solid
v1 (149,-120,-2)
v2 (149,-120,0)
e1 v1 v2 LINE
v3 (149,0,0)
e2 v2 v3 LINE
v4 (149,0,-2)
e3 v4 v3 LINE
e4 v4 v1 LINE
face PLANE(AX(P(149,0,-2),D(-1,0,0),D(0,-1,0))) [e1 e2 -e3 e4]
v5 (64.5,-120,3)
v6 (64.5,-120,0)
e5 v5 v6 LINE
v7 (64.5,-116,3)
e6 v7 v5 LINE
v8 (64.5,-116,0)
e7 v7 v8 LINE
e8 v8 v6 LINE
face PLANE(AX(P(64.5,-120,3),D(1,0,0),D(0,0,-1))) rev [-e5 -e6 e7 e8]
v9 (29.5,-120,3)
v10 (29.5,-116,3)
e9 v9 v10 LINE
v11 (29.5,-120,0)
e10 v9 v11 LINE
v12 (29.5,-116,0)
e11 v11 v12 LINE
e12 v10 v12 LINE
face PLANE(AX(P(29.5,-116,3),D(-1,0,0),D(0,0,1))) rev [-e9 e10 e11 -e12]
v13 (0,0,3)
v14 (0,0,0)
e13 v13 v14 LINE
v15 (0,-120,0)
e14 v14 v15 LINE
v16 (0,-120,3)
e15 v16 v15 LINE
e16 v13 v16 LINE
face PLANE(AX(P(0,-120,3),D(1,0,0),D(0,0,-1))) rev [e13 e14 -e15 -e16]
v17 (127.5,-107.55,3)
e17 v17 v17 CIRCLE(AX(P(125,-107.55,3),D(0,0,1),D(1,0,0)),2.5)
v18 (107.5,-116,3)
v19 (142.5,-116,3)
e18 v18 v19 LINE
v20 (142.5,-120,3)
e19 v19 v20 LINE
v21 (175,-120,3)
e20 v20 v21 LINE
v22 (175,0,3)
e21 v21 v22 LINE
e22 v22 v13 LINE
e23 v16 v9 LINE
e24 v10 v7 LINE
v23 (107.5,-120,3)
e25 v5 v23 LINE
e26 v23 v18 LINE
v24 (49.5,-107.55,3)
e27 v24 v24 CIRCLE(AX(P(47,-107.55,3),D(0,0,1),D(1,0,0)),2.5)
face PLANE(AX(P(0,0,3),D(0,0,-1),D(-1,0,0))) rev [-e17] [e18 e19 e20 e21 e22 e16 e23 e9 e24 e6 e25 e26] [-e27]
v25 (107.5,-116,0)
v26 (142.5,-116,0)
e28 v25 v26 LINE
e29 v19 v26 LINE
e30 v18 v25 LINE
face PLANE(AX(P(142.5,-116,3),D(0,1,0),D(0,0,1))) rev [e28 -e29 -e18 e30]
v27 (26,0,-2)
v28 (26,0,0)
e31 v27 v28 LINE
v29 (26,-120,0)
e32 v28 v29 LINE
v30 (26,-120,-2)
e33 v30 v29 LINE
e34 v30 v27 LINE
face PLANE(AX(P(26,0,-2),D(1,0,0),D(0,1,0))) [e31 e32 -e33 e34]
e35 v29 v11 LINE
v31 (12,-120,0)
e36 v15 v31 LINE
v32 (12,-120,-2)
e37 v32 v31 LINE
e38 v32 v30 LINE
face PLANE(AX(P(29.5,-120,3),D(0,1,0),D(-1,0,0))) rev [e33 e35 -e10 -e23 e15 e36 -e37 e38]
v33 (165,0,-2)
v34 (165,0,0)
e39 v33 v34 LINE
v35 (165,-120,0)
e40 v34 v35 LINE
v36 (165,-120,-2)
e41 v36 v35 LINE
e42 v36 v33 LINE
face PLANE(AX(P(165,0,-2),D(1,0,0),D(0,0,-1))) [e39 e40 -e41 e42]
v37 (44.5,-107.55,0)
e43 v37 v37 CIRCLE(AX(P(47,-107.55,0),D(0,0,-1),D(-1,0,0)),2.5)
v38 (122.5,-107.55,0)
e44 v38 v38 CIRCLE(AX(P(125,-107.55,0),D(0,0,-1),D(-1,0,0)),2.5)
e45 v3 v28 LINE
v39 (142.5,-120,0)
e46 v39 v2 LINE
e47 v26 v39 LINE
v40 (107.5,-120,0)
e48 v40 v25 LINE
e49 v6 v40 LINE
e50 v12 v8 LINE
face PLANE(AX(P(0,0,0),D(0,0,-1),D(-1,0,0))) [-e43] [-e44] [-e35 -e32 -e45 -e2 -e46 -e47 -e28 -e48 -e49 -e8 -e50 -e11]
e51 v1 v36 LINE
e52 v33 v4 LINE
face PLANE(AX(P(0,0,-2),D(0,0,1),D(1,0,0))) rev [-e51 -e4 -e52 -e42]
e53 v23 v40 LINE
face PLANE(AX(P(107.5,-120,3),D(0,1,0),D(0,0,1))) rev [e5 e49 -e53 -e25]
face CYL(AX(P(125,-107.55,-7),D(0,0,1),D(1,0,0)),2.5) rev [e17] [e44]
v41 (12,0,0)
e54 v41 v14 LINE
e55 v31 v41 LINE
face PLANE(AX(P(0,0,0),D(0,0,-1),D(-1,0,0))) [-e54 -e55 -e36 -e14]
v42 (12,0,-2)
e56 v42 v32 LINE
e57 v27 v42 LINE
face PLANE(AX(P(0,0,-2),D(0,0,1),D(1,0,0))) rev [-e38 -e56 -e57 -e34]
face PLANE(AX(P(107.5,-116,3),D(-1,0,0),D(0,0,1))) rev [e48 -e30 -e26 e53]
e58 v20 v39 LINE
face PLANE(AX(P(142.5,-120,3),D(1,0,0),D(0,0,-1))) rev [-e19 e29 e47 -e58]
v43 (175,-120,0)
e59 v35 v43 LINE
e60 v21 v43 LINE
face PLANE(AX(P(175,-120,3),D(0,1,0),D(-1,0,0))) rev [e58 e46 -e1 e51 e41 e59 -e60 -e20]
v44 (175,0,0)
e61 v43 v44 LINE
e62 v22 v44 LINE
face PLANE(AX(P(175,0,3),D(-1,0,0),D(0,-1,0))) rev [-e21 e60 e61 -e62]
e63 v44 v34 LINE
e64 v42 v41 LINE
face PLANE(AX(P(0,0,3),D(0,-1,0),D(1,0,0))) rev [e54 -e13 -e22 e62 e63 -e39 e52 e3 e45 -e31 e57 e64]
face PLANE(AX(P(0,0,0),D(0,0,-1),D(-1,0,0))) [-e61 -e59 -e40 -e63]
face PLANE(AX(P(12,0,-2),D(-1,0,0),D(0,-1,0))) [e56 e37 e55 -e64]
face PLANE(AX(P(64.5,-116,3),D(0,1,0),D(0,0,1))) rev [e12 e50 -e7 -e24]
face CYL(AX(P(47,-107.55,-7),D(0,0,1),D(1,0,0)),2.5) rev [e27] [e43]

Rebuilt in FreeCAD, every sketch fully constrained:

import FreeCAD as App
import Part
import Sketcher
Q = App.Units.Quantity


def add_polygon(sketch, points):
    """Adds a closed chain of lines whose ends are joined by coincident constraints."""
    first, n = sketch.GeometryCount, len(points)
    for a, b in zip(points, points[1:] + points[:1]):
        sketch.addGeometry(Part.LineSegment(App.Vector(*a, 0), App.Vector(*b, 0)), False)
    for i in range(n):
        sketch.addConstraint(Sketcher.Constraint("Coincident", first + i, 2, first + (i + 1) % n, 1))

doc = App.newDocument("Part")
body = doc.addObject("PartDesign::Body", "Body")

# Sketch on XY plane
sketch1 = body.newObject("Sketcher::SketchObject", "Sketch")
sketch1.AttachmentSupport = (doc.getObject("XY_Plane"), [""])
sketch1.MapMode = "FlatFace"
add_polygon(sketch1, [(175, 0), (0, 0), (0, -120), (29.5, -120), (29.5, -116), (64.5, -116), (64.5, -120), (107.5, -120), (107.5, -116), (142.5, -116), (142.5, -120), (175, -120)])  # lines 0-11
sketch1.addConstraint([
    Sketcher.Constraint("Horizontal", 0),
    Sketcher.Constraint("Vertical", 1),
    Sketcher.Constraint("Horizontal", 2),
    Sketcher.Constraint("Vertical", 3),
    Sketcher.Constraint("Horizontal", 4),
    Sketcher.Constraint("Vertical", 5),
    Sketcher.Constraint("Horizontal", 6),
    Sketcher.Constraint("Vertical", 7),
    Sketcher.Constraint("Horizontal", 8),
    Sketcher.Constraint("Vertical", 9),
    Sketcher.Constraint("Horizontal", 10),
    Sketcher.Constraint("Vertical", 11),
    Sketcher.Constraint("Coincident", 0, 2, -1, 1),
    Sketcher.Constraint("Horizontal", 2, 2, 5, 2),
    Sketcher.Constraint("Horizontal", 4, 2, 7, 2),
    Sketcher.Constraint("Horizontal", 6, 2, 9, 2),
    Sketcher.Constraint("Equal", 4, 8),
    Sketcher.Constraint("DistanceX", 0, 2, 0, 1, Q("175 mm")),
    Sketcher.Constraint("DistanceX", 4, 1, 4, 2, Q("35 mm")),
    Sketcher.Constraint("DistanceX", 6, 1, 6, 2, Q("43 mm")),
    Sketcher.Constraint("DistanceY", 1, 2, 1, 1, Q("120 mm")),
    Sketcher.Constraint("DistanceY", 3, 1, 3, 2, Q("4 mm")),
    Sketcher.Constraint("DistanceX", 2, 1, 2, 2, Q("29.5 mm")),
])
pad1 = body.newObject("PartDesign::Pad", "Pad")
pad1.Profile = sketch1
pad1.Length = 3

# Sketch on XY plane
sketch2 = body.newObject("Sketcher::SketchObject", "Sketch001")
sketch2.AttachmentSupport = (doc.getObject("XY_Plane"), [""])
sketch2.MapMode = "FlatFace"
sketch2.AttachmentOffset = App.Placement(App.Vector(0, 0, 3), App.Rotation())
add_polygon(sketch2, [(12, 0), (12, -120), (26, -120), (26, 0)])  # lines 0-3
add_polygon(sketch2, [(149, 0), (149, -120), (165, -120), (165, 0)])  # lines 4-7
sketch2.addConstraint([
    Sketcher.Constraint("Vertical", 0),
    Sketcher.Constraint("Horizontal", 1),
    Sketcher.Constraint("Vertical", 2),
    Sketcher.Constraint("Horizontal", 3),
    Sketcher.Constraint("Vertical", 4),
    Sketcher.Constraint("Horizontal", 5),
    Sketcher.Constraint("Vertical", 6),
    Sketcher.Constraint("Horizontal", 7),
    Sketcher.Constraint("PointOnObject", 2, 2, -1),
    Sketcher.Constraint("PointOnObject", 6, 2, -1),
    Sketcher.Constraint("Horizontal", 1, 2, 4, 2),
    Sketcher.Constraint("DistanceX", 1, 1, 1, 2, Q("14 mm")),
    Sketcher.Constraint("DistanceX", 5, 1, 5, 2, Q("16 mm")),
    Sketcher.Constraint("DistanceY", 0, 2, 0, 1, Q("120 mm")),
    Sketcher.Constraint("DistanceX", -1, 1, 0, 2, Q("12 mm")),
    Sketcher.Constraint("DistanceX", -1, 1, 4, 2, Q("149 mm")),
])
pad2 = body.newObject("PartDesign::Pad", "Pad001")
pad2.Profile = sketch2
pad2.Length = 5
pad2.Reversed = True

# Sketch on XY plane
sketch3 = body.newObject("Sketcher::SketchObject", "Sketch002")
sketch3.AttachmentSupport = (doc.getObject("XY_Plane"), [""])
sketch3.MapMode = "FlatFace"
sketch3.AttachmentOffset = App.Placement(App.Vector(0, 0, 3), App.Rotation())
sketch3.addGeometry([
    Part.Circle(App.Vector(47, -107.55, 0), App.Vector(0, 0, 1), 2.5),
    Part.Circle(App.Vector(125, -107.55, 0), App.Vector(0, 0, 1), 2.5),
], False)
sketch3.addConstraint([
    Sketcher.Constraint("Equal", 0, 1),
    Sketcher.Constraint("Horizontal", 0, 3, 1, 3),
    Sketcher.Constraint("Diameter", 0, Q("5 mm")),
    Sketcher.Constraint("DistanceX", -1, 1, 0, 3, Q("47 mm")),
    Sketcher.Constraint("DistanceX", -1, 1, 1, 3, Q("125 mm")),
    Sketcher.Constraint("DistanceY", 0, 3, -1, 1, Q("107.55 mm")),
])
pocket1 = body.newObject("PartDesign::Pocket", "Pocket")
pocket1.Profile = sketch3
pocket1.Length = 10

doc.recompute()
